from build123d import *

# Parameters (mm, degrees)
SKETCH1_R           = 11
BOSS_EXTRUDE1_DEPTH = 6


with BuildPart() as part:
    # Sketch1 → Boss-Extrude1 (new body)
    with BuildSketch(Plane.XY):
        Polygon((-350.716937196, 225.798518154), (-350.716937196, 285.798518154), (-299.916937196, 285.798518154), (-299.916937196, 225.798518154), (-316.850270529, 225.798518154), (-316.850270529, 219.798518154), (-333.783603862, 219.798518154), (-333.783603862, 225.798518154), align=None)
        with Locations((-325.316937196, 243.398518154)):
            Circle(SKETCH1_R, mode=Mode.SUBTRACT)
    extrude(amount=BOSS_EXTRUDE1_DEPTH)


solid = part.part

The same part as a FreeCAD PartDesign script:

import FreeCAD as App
import Part
import Sketcher
from FreeCAD import Vector
Q = App.Units.Quantity

doc = App.newDocument("Part")
params = doc.addObject("Spreadsheet::Sheet", "Params")
for row, (alias, value) in enumerate([
    ("sketch1_diameter", "22 mm"),
    ("sketch1_height", "60 mm"),
    ("sketch1_height2", "6 mm"),
    ("sketch1_width", "50.8 mm"),
    ("pad1_length", "6 mm"),
], start=1):
    params.set(f"A{row}", alias)
    params.set(f"B{row}", "=" + value)
    params.setAlias(f"B{row}", alias)

body = doc.addObject("PartDesign::Body", "Body")

# Sketch on XY plane
sketch1 = body.newObject("Sketcher::SketchObject", "Sketch")
sketch1.AttachmentSupport = (doc.getObject("XY_Plane"), [""])
sketch1.MapMode = "FlatFace"
sketch1.addGeometry([
    Part.LineSegment(Vector(-350.716937, 285.798518, 0), Vector(-350.716937, 225.798518, 0)),  # 0
    Part.LineSegment(Vector(-350.716937, 225.798518, 0), Vector(-333.783604, 225.798518, 0)),  # 1
    Part.LineSegment(Vector(-333.783604, 225.798518, 0), Vector(-333.783604, 219.798518, 0)),  # 2
    Part.LineSegment(Vector(-333.783604, 219.798518, 0), Vector(-316.850271, 219.798518, 0)),  # 3
    Part.LineSegment(Vector(-316.850271, 219.798518, 0), Vector(-316.850271, 225.798518, 0)),  # 4
    Part.LineSegment(Vector(-316.850271, 225.798518, 0), Vector(-299.916937, 225.798518, 0)),  # 5
    Part.LineSegment(Vector(-299.916937, 225.798518, 0), Vector(-299.916937, 285.798518, 0)),  # 6
    Part.LineSegment(Vector(-299.916937, 285.798518, 0), Vector(-350.716937, 285.798518, 0)),  # 7
    Part.Circle(Vector(-325.316937, 243.398518, 0), Vector(0, 0, 1), 11),  # 8
], False)
sketch1.addConstraint([
    Sketcher.Constraint("Coincident", 0, 2, 1, 1),
    Sketcher.Constraint("Coincident", 1, 2, 2, 1),
    Sketcher.Constraint("Coincident", 2, 2, 3, 1),
    Sketcher.Constraint("Coincident", 3, 2, 4, 1),
    Sketcher.Constraint("Coincident", 4, 2, 5, 1),
    Sketcher.Constraint("Coincident", 5, 2, 6, 1),
    Sketcher.Constraint("Coincident", 6, 2, 7, 1),
    Sketcher.Constraint("Coincident", 7, 2, 0, 1),
    Sketcher.Constraint("Vertical", 0),
    Sketcher.Constraint("Horizontal", 1),
    Sketcher.Constraint("Vertical", 2),
    Sketcher.Constraint("Horizontal", 3),
    Sketcher.Constraint("Vertical", 4),
    Sketcher.Constraint("Horizontal", 5),
    Sketcher.Constraint("Vertical", 6),
    Sketcher.Constraint("Horizontal", 7),
    Sketcher.Constraint("Horizontal", 1, 2, 4, 2),
    Sketcher.Constraint("Equal", 1, 3),
    Sketcher.Constraint("Equal", 3, 5),
    Sketcher.Constraint("Diameter", 8, Q("22 mm")),
    Sketcher.Constraint("DistanceY", 0, 2, 0, 1, Q("60 mm")),
    Sketcher.Constraint("DistanceY", 2, 2, 2, 1, Q("6 mm")),
    Sketcher.Constraint("DistanceX", 7, 2, 7, 1, Q("50.8 mm")),
    Sketcher.Constraint("DistanceX", 0, 2, 8, 3, Q("25.4 mm")),
    Sketcher.Constraint("DistanceY", 0, 2, 8, 3, Q("17.6 mm")),
    Sketcher.Constraint("DistanceY", -1, 1, 8, 3, Q("243.398518 mm")),
    Sketcher.Constraint("DistanceX", 3, 2, -1, 1, Q("316.850271 mm")),
])
sketch1.setExpression("Constraints[19]", "Params.sketch1_diameter")
sketch1.setExpression("Constraints[20]", "Params.sketch1_height")
sketch1.setExpression("Constraints[21]", "Params.sketch1_height2")
sketch1.setExpression("Constraints[22]", "Params.sketch1_width")
pad1 = body.newObject("PartDesign::Pad", "Pad")
pad1.Profile = sketch1
pad1.setExpression("Length", "Params.pad1_length")

doc.recompute()
